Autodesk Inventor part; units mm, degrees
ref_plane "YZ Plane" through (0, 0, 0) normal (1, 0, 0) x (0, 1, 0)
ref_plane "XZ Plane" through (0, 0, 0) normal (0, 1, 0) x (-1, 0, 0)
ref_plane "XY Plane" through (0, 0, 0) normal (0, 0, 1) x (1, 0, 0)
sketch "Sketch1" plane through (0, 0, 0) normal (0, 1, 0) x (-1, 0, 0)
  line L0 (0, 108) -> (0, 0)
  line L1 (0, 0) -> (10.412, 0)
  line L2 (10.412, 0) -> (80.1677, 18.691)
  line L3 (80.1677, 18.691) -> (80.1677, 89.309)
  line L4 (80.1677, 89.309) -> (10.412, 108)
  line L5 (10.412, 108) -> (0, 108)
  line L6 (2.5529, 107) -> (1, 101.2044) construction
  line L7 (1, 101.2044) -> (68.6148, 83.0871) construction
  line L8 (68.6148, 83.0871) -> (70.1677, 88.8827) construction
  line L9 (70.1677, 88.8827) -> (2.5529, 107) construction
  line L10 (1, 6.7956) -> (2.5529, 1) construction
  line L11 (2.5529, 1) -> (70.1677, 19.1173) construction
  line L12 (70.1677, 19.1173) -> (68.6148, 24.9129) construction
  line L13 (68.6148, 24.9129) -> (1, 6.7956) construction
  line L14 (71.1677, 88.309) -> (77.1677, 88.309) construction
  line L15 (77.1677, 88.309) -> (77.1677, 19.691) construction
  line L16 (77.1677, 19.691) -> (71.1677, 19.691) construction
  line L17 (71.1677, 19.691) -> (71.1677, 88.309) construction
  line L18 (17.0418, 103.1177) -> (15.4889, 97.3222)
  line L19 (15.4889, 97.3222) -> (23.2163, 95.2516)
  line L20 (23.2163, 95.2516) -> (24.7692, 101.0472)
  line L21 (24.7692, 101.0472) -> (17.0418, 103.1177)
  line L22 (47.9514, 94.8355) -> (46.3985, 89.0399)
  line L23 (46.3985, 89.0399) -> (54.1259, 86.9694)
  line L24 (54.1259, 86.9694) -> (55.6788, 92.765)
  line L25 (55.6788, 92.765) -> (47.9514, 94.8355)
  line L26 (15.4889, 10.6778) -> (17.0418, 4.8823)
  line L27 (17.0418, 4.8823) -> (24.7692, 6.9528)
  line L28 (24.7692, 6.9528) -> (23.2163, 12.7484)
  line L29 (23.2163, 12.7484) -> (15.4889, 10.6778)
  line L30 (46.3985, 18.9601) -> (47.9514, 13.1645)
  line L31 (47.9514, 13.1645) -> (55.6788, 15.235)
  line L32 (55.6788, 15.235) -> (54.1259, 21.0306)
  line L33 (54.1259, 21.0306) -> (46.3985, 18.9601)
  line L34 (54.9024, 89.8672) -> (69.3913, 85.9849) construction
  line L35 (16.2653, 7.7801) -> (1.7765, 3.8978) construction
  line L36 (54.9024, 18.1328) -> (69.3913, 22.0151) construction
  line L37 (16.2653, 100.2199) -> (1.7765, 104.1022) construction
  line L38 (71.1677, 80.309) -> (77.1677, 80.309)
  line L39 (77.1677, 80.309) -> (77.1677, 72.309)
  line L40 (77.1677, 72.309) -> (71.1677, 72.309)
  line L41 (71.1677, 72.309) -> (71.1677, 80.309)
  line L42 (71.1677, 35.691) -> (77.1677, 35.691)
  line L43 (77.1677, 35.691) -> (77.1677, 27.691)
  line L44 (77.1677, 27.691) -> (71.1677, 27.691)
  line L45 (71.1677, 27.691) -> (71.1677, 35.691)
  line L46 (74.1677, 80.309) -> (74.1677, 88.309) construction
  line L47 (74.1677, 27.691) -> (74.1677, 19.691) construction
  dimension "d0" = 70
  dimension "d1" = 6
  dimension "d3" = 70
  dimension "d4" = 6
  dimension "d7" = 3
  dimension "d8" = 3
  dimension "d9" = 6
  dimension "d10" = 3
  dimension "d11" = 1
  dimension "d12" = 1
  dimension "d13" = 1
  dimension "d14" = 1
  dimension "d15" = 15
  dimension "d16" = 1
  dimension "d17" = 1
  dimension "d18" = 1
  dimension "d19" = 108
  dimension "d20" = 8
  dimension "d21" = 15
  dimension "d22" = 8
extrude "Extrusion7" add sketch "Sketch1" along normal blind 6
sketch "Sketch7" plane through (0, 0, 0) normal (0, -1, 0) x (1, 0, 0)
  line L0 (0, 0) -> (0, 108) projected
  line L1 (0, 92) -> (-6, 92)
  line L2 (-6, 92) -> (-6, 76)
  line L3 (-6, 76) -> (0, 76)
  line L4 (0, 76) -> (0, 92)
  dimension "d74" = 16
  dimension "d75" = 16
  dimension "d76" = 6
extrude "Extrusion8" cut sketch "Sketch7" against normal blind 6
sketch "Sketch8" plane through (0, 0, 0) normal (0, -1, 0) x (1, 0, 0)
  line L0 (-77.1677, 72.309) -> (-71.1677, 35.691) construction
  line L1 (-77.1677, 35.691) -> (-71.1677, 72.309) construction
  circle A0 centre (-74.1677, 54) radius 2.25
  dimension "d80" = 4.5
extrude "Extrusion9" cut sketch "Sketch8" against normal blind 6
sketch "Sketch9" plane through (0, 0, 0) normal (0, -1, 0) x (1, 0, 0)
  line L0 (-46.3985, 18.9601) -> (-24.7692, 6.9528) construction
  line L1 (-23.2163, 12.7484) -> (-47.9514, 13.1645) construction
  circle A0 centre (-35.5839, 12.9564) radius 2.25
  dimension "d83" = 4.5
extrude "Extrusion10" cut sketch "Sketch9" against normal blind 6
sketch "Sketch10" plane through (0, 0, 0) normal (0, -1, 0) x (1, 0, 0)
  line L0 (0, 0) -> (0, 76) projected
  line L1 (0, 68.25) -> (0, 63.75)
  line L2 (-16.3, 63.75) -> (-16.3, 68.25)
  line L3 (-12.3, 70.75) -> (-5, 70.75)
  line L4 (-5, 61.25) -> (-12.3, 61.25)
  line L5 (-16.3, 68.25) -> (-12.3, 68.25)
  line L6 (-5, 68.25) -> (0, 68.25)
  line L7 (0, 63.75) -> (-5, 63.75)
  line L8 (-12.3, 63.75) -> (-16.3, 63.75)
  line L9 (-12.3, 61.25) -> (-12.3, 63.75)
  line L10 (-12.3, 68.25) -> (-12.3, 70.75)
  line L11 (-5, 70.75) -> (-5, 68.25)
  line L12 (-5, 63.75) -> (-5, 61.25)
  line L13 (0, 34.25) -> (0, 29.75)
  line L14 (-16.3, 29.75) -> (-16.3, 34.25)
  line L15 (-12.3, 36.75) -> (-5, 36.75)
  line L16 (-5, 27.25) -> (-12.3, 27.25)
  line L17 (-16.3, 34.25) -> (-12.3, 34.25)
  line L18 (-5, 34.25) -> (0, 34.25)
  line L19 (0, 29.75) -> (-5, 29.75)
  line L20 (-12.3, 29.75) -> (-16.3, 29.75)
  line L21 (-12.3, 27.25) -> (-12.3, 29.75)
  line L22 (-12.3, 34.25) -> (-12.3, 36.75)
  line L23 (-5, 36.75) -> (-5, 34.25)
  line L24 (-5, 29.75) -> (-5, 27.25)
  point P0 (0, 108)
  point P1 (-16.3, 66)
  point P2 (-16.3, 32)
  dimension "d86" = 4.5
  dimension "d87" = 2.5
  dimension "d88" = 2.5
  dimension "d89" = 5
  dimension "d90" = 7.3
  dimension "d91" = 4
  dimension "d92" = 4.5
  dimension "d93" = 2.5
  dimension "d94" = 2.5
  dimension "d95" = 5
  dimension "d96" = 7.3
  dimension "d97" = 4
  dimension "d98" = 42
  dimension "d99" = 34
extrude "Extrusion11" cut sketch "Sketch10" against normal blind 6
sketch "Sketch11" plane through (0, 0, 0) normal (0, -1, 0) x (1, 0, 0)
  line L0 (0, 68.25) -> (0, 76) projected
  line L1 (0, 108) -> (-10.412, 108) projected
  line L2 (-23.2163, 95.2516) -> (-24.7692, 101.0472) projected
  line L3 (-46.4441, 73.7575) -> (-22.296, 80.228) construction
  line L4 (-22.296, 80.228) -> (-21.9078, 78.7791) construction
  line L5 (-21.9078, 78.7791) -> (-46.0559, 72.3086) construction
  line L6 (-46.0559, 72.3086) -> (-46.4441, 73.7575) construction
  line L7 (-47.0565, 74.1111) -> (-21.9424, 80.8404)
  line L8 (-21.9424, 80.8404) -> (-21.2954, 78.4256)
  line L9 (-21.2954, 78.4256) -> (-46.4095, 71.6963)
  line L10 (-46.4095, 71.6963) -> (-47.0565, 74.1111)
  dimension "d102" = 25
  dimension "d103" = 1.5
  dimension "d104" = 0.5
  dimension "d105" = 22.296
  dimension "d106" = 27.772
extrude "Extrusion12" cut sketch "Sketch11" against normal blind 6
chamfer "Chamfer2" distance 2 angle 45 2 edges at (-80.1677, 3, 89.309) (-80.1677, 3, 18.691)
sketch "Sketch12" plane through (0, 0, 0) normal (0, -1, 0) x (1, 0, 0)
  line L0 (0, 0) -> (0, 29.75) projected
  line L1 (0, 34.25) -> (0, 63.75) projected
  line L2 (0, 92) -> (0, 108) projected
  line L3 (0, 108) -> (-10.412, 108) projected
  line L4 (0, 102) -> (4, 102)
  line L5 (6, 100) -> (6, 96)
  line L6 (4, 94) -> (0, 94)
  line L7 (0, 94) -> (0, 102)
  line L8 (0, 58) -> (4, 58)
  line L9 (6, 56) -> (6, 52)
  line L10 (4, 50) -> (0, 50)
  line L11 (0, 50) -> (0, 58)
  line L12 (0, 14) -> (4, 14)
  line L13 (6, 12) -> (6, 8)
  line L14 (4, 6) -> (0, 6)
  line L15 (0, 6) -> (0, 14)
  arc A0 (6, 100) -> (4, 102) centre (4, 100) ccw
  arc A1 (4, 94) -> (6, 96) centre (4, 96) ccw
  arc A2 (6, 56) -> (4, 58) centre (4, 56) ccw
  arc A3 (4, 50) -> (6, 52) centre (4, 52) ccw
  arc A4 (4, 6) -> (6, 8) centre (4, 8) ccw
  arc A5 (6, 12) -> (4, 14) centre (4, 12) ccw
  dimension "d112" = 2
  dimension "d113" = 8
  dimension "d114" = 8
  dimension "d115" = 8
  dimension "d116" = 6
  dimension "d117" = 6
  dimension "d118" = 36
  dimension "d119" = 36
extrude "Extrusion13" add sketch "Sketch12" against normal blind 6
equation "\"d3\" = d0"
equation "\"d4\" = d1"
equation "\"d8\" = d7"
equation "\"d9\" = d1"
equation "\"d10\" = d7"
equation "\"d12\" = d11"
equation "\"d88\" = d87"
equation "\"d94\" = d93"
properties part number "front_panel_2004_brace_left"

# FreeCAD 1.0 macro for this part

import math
import FreeCAD as App
import Part
import Sketcher
from FreeCAD import Vector
Q = App.Units.Quantity


def edges_at(feature, points):
    """Names of the edges that pass closest to the given points."""
    edges = feature.Shape.Edges
    near = lambda p: min(range(len(edges)), key=lambda i: edges[i].distToShape(Part.Vertex(*p))[0])
    return sorted({f"Edge{near(p) + 1}" for p in points})


def add_polygon(sketch, points):
    """Adds a closed chain of lines whose ends are joined by coincident constraints."""
    first, n = sketch.GeometryCount, len(points)
    for a, b in zip(points, points[1:] + points[:1]):
        sketch.addGeometry(Part.LineSegment(App.Vector(*a, 0), App.Vector(*b, 0)), False)
    for i in range(n):
        sketch.addConstraint(Sketcher.Constraint("Coincident", first + i, 2, first + (i + 1) % n, 1))

doc = App.newDocument("Part")
params = doc.addObject("Spreadsheet::Sheet", "Params")
for row, (alias, value) in enumerate([
    ("sketch1_width", "6 mm"),
    ("sketch1_height", "108 mm"),
    ("sketch1_height2", "8 mm"),
    ("sketch1_length", "6 mm"),
    ("sketch1_length2", "8 mm"),
    ("pad1_length", "6 mm"),
    ("sketch2_width", "6 mm"),
    ("sketch2_height", "16 mm"),
    ("pocket1_length", "6 mm"),
    ("sketch3_diameter", "4.5 mm"),
    ("pocket2_length", "6 mm"),
    ("sketch4_diameter", "4.5 mm"),
    ("pocket3_length", "6 mm"),
    ("sketch5_width", "5 mm"),
    ("sketch5_width2", "4 mm"),
    ("sketch5_width3", "7.3 mm"),
    ("sketch5_height", "4.5 mm"),
    ("sketch5_height2", "2.5 mm"),
    ("pocket4_length", "6 mm"),
    ("sketch6_length", "26 mm"),
    ("sketch6_length2", "2.5 mm"),
    ("pocket5_length", "6 mm"),
    ("chamfer_size", "2 mm"),
    ("sketch7_radius", "2 mm"),
    ("sketch7_height", "8 mm"),
    ("pad2_length", "6 mm"),
], start=1):
    params.set(f"A{row}", alias)
    params.set(f"B{row}", "=" + value)
    params.setAlias(f"B{row}", alias)

body = doc.addObject("PartDesign::Body", "Body")

# Sketch on XZ plane
sketch1 = doc.addObject("Sketcher::SketchObject", "Sketch")
body.addObject(sketch1)
sketch1.AttachmentSupport = (doc.XZ_Plane, [""])
sketch1.MapMode = "FlatFace"
add_polygon(sketch1, [(-10, 108), (0, 108), (0, 0), (-10, 0), (-80, 19), (-80, 89)])  # lines 0-5
add_polygon(sketch1, [(-17, 5), (-15, 11), (-23, 13), (-25, 7)])  # lines 6-9
add_polygon(sketch1, [(-48, 13), (-46, 19), (-54, 21), (-56, 15)])  # lines 10-13
add_polygon(sketch1, [(-71, 28), (-71, 36), (-77, 36), (-77, 28)])  # lines 14-17
add_polygon(sketch1, [(-15, 97), (-17, 103), (-25, 101), (-23, 95)])  # lines 18-21
add_polygon(sketch1, [(-71, 72), (-71, 80), (-77, 80), (-77, 72)])  # lines 22-25
add_polygon(sketch1, [(-46, 89), (-48, 95), (-56, 93), (-54, 87)])  # lines 26-29
sketch1.addConstraint([
    Sketcher.Constraint("Horizontal", 0),
    Sketcher.Constraint("Vertical", 1),
    Sketcher.Constraint("Horizontal", 2),
    Sketcher.Constraint("Vertical", 4),
    Sketcher.Constraint("Vertical", 14),
    Sketcher.Constraint("Horizontal", 15),
    Sketcher.Constraint("Vertical", 16),
    Sketcher.Constraint("Horizontal", 17),
    Sketcher.Constraint("Vertical", 22),
    Sketcher.Constraint("Horizontal", 23),
    Sketcher.Constraint("Vertical", 24),
    Sketcher.Constraint("Horizontal", 25),
    Sketcher.Constraint("Coincident", 1, 2, -1, 1),
    Sketcher.Constraint("Perpendicular", 3, 6),
    Sketcher.Constraint("Perpendicular", 6, 7),
    Sketcher.Constraint("Perpendicular", 7, 8),
    Sketcher.Constraint("Perpendicular", 8, 9),
    Sketcher.Constraint("Perpendicular", 9, 10),
    Sketcher.Constraint("Perpendicular", 10, 11),
    Sketcher.Constraint("Perpendicular", 11, 12),
    Sketcher.Constraint("Perpendicular", 12, 13),
    Sketcher.Constraint("Perpendicular", 5, 18),
    Sketcher.Constraint("Perpendicular", 18, 19),
    Sketcher.Constraint("Perpendicular", 19, 20),
    Sketcher.Constraint("Perpendicular", 20, 21),
    Sketcher.Constraint("Perpendicular", 21, 26),
    Sketcher.Constraint("Perpendicular", 26, 27),
    Sketcher.Constraint("Perpendicular", 27, 28),
    Sketcher.Constraint("Perpendicular", 28, 29),
    Sketcher.Constraint("Vertical", 2, 2, 5, 2),
    Sketcher.Constraint("Vertical", 9, 2, 18, 2),
    Sketcher.Constraint("Vertical", 8, 2, 19, 2),
    Sketcher.Constraint("Vertical", 7, 2, 20, 2),
    Sketcher.Constraint("Vertical", 17, 2, 22, 2),
    Sketcher.Constraint("Vertical", 16, 2, 23, 2),
    Sketcher.Constraint("Vertical", 13, 2, 26, 2),
    Sketcher.Constraint("Vertical", 12, 2, 27, 2),
    Sketcher.Constraint("Vertical", 11, 2, 28, 2),
    Sketcher.Constraint("Equal", 16, 22),
    Sketcher.Constraint("Equal", 3, 5),
    Sketcher.Constraint("Equal", 8, 10),
    Sketcher.Constraint("Equal", 9, 11),
    Sketcher.Constraint("DistanceX", 15, 2, 15, 1, 6.0),
    Sketcher.Constraint("DistanceY", 1, 2, 1, 1, 108.0),
    Sketcher.Constraint("DistanceY", 14, 1, 14, 2, 8.0),
    Sketcher.Constraint("Angle", 5, Q("15 deg")),
    Sketcher.Constraint("Distance", 6, 6.0),
    Sketcher.Constraint("Distance", 7, 8.0),
    Sketcher.Constraint("DistanceX", 3, 2, 15, 2, 3.0),
    Sketcher.Constraint("DistanceY", 3, 2, 14, 2, 17.0),
    Sketcher.Constraint("DistanceY", 22, 2, 4, 2, 9.0),
    Sketcher.Constraint("DistanceX", 0, 1, 0, 2, 10.412),
    Sketcher.Constraint("DistanceY", 4, 1, 4, 2, 70.618),
    Sketcher.Constraint("DistanceY", -1, 1, 10, 2, 18.96),
    Sketcher.Constraint("DistanceY", -1, 1, 29, 2, 89.04),
    Sketcher.Constraint("DistanceX", 6, 2, -1, 1, 15.489),
    Sketcher.Constraint("DistanceX", 11, 2, -1, 1, 54.126),
    Sketcher.Constraint("DistanceY", 7, 2, 13, 2, 0.416),
    Sketcher.Constraint("DistanceY", 26, 2, 20, 2, 0.416),
])
sketch1.setExpression("Constraints[72]", "Params.sketch1_width")
sketch1.setExpression("Constraints[73]", "Params.sketch1_height")
sketch1.setExpression("Constraints[74]", "Params.sketch1_height2")
sketch1.setExpression("Constraints[76]", "Params.sketch1_length")
sketch1.setExpression("Constraints[77]", "Params.sketch1_length2")
pad1 = doc.addObject("PartDesign::Pad", "Pad")
body.addObject(pad1)
pad1.Profile = sketch1
pad1.setExpression("Length", "Params.pad1_length")
pad1.Reversed = True

# Sketch on XZ plane
sketch2 = doc.addObject("Sketcher::SketchObject", "Sketch001")
body.addObject(sketch2)
sketch2.AttachmentSupport = (doc.XZ_Plane, [""])
sketch2.MapMode = "FlatFace"
add_polygon(sketch2, [(-6, 76), (0, 76), (0, 92), (-6, 92)])  # lines 0-3
sketch2.addConstraint([
    Sketcher.Constraint("Horizontal", 0),
    Sketcher.Constraint("Vertical", 1),
    Sketcher.Constraint("Horizontal", 2),
    Sketcher.Constraint("Vertical", 3),
    Sketcher.Constraint("PointOnObject", 0, 2, -2),
    Sketcher.Constraint("DistanceX", 0, 1, 0, 2, 6.0),
    Sketcher.Constraint("DistanceY", 1, 1, 1, 2, 16.0),
    Sketcher.Constraint("DistanceY", -1, 1, 0, 2, 76.0),
])
sketch2.setExpression("Constraints[9]", "Params.sketch2_width")
sketch2.setExpression("Constraints[10]", "Params.sketch2_height")
pocket1 = doc.addObject("PartDesign::Pocket", "Pocket")
body.addObject(pocket1)
pocket1.Profile = sketch2
pocket1.setExpression("Length", "Params.pocket1_length")

# Sketch on XZ plane
sketch3 = doc.addObject("Sketcher::SketchObject", "Sketch002")
body.addObject(sketch3)
sketch3.AttachmentSupport = (doc.XZ_Plane, [""])
sketch3.MapMode = "FlatFace"
sketch3.addGeometry(Part.Circle(Vector(-74.2, 54, 0), Vector(0, 0, 1), 2.2), False)
sketch3.addConstraint([
    Sketcher.Constraint("Diameter", 0, 4.5),
    Sketcher.Constraint("DistanceY", -1, 1, 0, 3, 54.0),
    Sketcher.Constraint("DistanceX", 0, 3, -1, 1, 74.1677),
])
sketch3.setExpression("Constraints[0]", "Params.sketch3_diameter")
pocket2 = doc.addObject("PartDesign::Pocket", "Pocket001")
body.addObject(pocket2)
pocket2.Profile = sketch3
pocket2.setExpression("Length", "Params.pocket2_length")

# Sketch on XZ plane
sketch4 = doc.addObject("Sketcher::SketchObject", "Sketch003")
body.addObject(sketch4)
sketch4.AttachmentSupport = (doc.XZ_Plane, [""])
sketch4.MapMode = "FlatFace"
sketch4.addGeometry(Part.Circle(Vector(-35.6, 13, 0), Vector(0, 0, 1), 2.2), False)
sketch4.addConstraint([
    Sketcher.Constraint("Diameter", 0, 4.5),
    Sketcher.Constraint("DistanceX", 0, 3, -1, 1, 35.584),
    Sketcher.Constraint("DistanceY", -1, 1, 0, 3, 12.9564),
])
sketch4.setExpression("Constraints[0]", "Params.sketch4_diameter")
pocket3 = doc.addObject("PartDesign::Pocket", "Pocket002")
body.addObject(pocket3)
pocket3.Profile = sketch4
pocket3.setExpression("Length", "Params.pocket3_length")

# Sketch on XZ plane
sketch5 = doc.addObject("Sketcher::SketchObject", "Sketch004")
body.addObject(sketch5)
sketch5.AttachmentSupport = (doc.XZ_Plane, [""])
sketch5.MapMode = "FlatFace"
add_polygon(sketch5, [(-5, 29.8), (0, 29.8), (0, 34.2), (-5, 34.2), (-5, 36.8), (-12.3, 36.8), (-12.3, 34.2), (-16.3, 34.2), (-16.3, 29.8), (-12.3, 29.8), (-12.3, 27.2), (-5, 27.2)])  # lines 0-11
add_polygon(sketch5, [(-5, 63.8), (0, 63.8), (0, 68.2), (-5, 68.2), (-5, 70.8), (-12.3, 70.8), (-12.3, 68.2), (-16.3, 68.2), (-16.3, 63.8), (-12.3, 63.8), (-12.3, 61.2), (-5, 61.2)])  # lines 12-23
sketch5.addConstraint([
    Sketcher.Constraint("Horizontal", 0),
    Sketcher.Constraint("Vertical", 1),
    Sketcher.Constraint("Horizontal", 2),
    Sketcher.Constraint("Vertical", 3),
    Sketcher.Constraint("Horizontal", 4),
    Sketcher.Constraint("Vertical", 5),
    Sketcher.Constraint("Horizontal", 6),
    Sketcher.Constraint("Vertical", 7),
    Sketcher.Constraint("Horizontal", 8),
    Sketcher.Constraint("Vertical", 9),
    Sketcher.Constraint("Horizontal", 10),
    Sketcher.Constraint("Vertical", 11),
    Sketcher.Constraint("Horizontal", 12),
    Sketcher.Constraint("Vertical", 13),
    Sketcher.Constraint("Horizontal", 14),
    Sketcher.Constraint("Vertical", 15),
    Sketcher.Constraint("Horizontal", 16),
    Sketcher.Constraint("Vertical", 17),
    Sketcher.Constraint("Horizontal", 18),
    Sketcher.Constraint("Vertical", 19),
    Sketcher.Constraint("Horizontal", 20),
    Sketcher.Constraint("Vertical", 21),
    Sketcher.Constraint("Horizontal", 22),
    Sketcher.Constraint("Vertical", 23),
    Sketcher.Constraint("PointOnObject", 0, 2, -2),
    Sketcher.Constraint("PointOnObject", 12, 2, -2),
    Sketcher.Constraint("Horizontal", 2, 2, 5, 2),
    Sketcher.Constraint("Horizontal", 0, 2, 7, 2),
    Sketcher.Constraint("Horizontal", 14, 2, 17, 2),
    Sketcher.Constraint("Horizontal", 12, 2, 19, 2),
    Sketcher.Constraint("Vertical", 5, 2, 8, 2),
    Sketcher.Constraint("Vertical", 3, 2, 10, 2),
    Sketcher.Constraint("Vertical", 11, 2, 14, 2),
    Sketcher.Constraint("Vertical", 9, 2, 16, 2),
    Sketcher.Constraint("Vertical", 7, 2, 18, 2),
    Sketcher.Constraint("Vertical", 17, 2, 20, 2),
    Sketcher.Constraint("Vertical", 15, 2, 22, 2),
    Sketcher.Constraint("Equal", 5, 9),
    Sketcher.Constraint("Equal", 7, 13),
    Sketcher.Constraint("Equal", 11, 15),
    Sketcher.Constraint("Equal", 17, 21),
    Sketcher.Constraint("DistanceX", 0, 1, 0, 2, 5.0),
    Sketcher.Constraint("DistanceX", 6, 2, 6, 1, 4.0),
    Sketcher.Constraint("DistanceX", 4, 2, 4, 1, 7.3),
    Sketcher.Constraint("DistanceY", 1, 1, 1, 2, 4.5),
    Sketcher.Constraint("DistanceY", 3, 1, 3, 2, 2.5),
    Sketcher.Constraint("DistanceY", 1, 2, 13, 2, 34.0),
    Sketcher.Constraint("DistanceY", -1, 1, 0, 2, 29.75),
])
sketch5.setExpression("Constraints[65]", "Params.sketch5_width")
sketch5.setExpression("Constraints[66]", "Params.sketch5_width2")
sketch5.setExpression("Constraints[67]", "Params.sketch5_width3")
sketch5.setExpression("Constraints[68]", "Params.sketch5_height")
sketch5.setExpression("Constraints[69]", "Params.sketch5_height2")
pocket4 = doc.addObject("PartDesign::Pocket", "Pocket003")
body.addObject(pocket4)
pocket4.Profile = sketch5
pocket4.setExpression("Length", "Params.pocket4_length")

# Sketch on XZ plane
sketch6 = doc.addObject("Sketcher::SketchObject", "Sketch005")
body.addObject(sketch6)
sketch6.AttachmentSupport = (doc.XZ_Plane, [""])
sketch6.MapMode = "FlatFace"
add_polygon(sketch6, [(-21.9, 80.8), (-47.1, 74.1), (-46.4, 71.7), (-21.3, 78.4)])  # lines 0-3
sketch6.addConstraint([
    Sketcher.Constraint("Perpendicular", 0, 1),
    Sketcher.Constraint("Perpendicular", 1, 2),
    Sketcher.Constraint("Perpendicular", 2, 3),
    Sketcher.Constraint("Angle", 0, Q("-165 deg")),
    Sketcher.Constraint("Distance", 0, 26.0),
    Sketcher.Constraint("Distance", 1, 2.5),
    Sketcher.Constraint("DistanceY", -1, 1, 0, 2, 74.111),
    Sketcher.Constraint("DistanceX", 0, 2, -1, 1, 47.0565),
])
sketch6.setExpression("Constraints[8]", "Params.sketch6_length")
sketch6.setExpression("Constraints[9]", "Params.sketch6_length2")
pocket5 = doc.addObject("PartDesign::Pocket", "Pocket004")
body.addObject(pocket5)
pocket5.Profile = sketch6
pocket5.setExpression("Length", "Params.pocket5_length")
doc.recompute()

chamfer = doc.addObject("PartDesign::Chamfer", "Chamfer")
body.addObject(chamfer)
chamfer.Base = (pocket5, edges_at(pocket5, [(-80.168, 3, 89.309), (-80.168, 3, 18.691)]))
chamfer.setExpression("Size", "Params.chamfer_size")

# Sketch on XZ plane
sketch7 = doc.addObject("Sketcher::SketchObject", "Sketch006")
body.addObject(sketch7)
sketch7.AttachmentSupport = (doc.XZ_Plane, [""])
sketch7.MapMode = "FlatFace"
sketch7.addGeometry([
    Part.LineSegment(Vector(0, 14, 0), Vector(0, 6, 0)),  # 0
    Part.LineSegment(Vector(0, 6, 0), Vector(4, 6, 0)),  # 1
    Part.ArcOfCircle(Part.Circle(Vector(4, 8, 0), Vector(0, 0, 1), 2), math.radians(-90), math.radians(0)),  # 2
    Part.LineSegment(Vector(6, 8, 0), Vector(6, 12, 0)),  # 3
    Part.ArcOfCircle(Part.Circle(Vector(4, 12, 0), Vector(0, 0, 1), 2), math.radians(0), math.radians(90)),  # 4
    Part.LineSegment(Vector(4, 14, 0), Vector(0, 14, 0)),  # 5
    Part.LineSegment(Vector(0, 58, 0), Vector(0, 50, 0)),  # 6
    Part.LineSegment(Vector(0, 50, 0), Vector(4, 50, 0)),  # 7
    Part.ArcOfCircle(Part.Circle(Vector(4, 52, 0), Vector(0, 0, 1), 2), math.radians(-90), math.radians(0)),  # 8
    Part.LineSegment(Vector(6, 52, 0), Vector(6, 56, 0)),  # 9
    Part.ArcOfCircle(Part.Circle(Vector(4, 56, 0), Vector(0, 0, 1), 2), math.radians(0), math.radians(90)),  # 10
    Part.LineSegment(Vector(4, 58, 0), Vector(0, 58, 0)),  # 11
    Part.LineSegment(Vector(0, 102, 0), Vector(0, 94, 0)),  # 12
    Part.LineSegment(Vector(0, 94, 0), Vector(4, 94, 0)),  # 13
    Part.ArcOfCircle(Part.Circle(Vector(4, 96, 0), Vector(0, 0, 1), 2), math.radians(-90), math.radians(0)),  # 14
    Part.LineSegment(Vector(6, 96, 0), Vector(6, 100, 0)),  # 15
    Part.ArcOfCircle(Part.Circle(Vector(4, 100, 0), Vector(0, 0, 1), 2), math.radians(0), math.radians(90)),  # 16
    Part.LineSegment(Vector(4, 102, 0), Vector(0, 102, 0)),  # 17
], False)
sketch7.addConstraint([
    Sketcher.Constraint("Coincident", 0, 2, 1, 1),
    Sketcher.Constraint("Tangent", 1, 2, 2, 1),
    Sketcher.Constraint("Tangent", 2, 2, 3, 1),
    Sketcher.Constraint("Tangent", 3, 2, 4, 1),
    Sketcher.Constraint("Tangent", 4, 2, 5, 1),
    Sketcher.Constraint("Coincident", 5, 2, 0, 1),
    Sketcher.Constraint("Coincident", 6, 2, 7, 1),
    Sketcher.Constraint("Tangent", 7, 2, 8, 1),
    Sketcher.Constraint("Tangent", 8, 2, 9, 1),
    Sketcher.Constraint("Tangent", 9, 2, 10, 1),
    Sketcher.Constraint("Tangent", 10, 2, 11, 1),
    Sketcher.Constraint("Coincident", 11, 2, 6, 1),
    Sketcher.Constraint("Coincident", 12, 2, 13, 1),
    Sketcher.Constraint("Tangent", 13, 2, 14, 1),
    Sketcher.Constraint("Tangent", 14, 2, 15, 1),
    Sketcher.Constraint("Tangent", 15, 2, 16, 1),
    Sketcher.Constraint("Tangent", 16, 2, 17, 1),
    Sketcher.Constraint("Coincident", 17, 2, 12, 1),
    Sketcher.Constraint("Vertical", 0),
    Sketcher.Constraint("Horizontal", 1),
    Sketcher.Constraint("Vertical", 3),
    Sketcher.Constraint("Horizontal", 5),
    Sketcher.Constraint("Vertical", 6),
    Sketcher.Constraint("Horizontal", 7),
    Sketcher.Constraint("Vertical", 9),
    Sketcher.Constraint("Horizontal", 11),
    Sketcher.Constraint("Vertical", 12),
    Sketcher.Constraint("Horizontal", 13),
    Sketcher.Constraint("Vertical", 15),
    Sketcher.Constraint("Horizontal", 17),
    Sketcher.Constraint("Equal", 2, 4),
    Sketcher.Constraint("Equal", 4, 8),
    Sketcher.Constraint("Equal", 8, 10),
    Sketcher.Constraint("Equal", 10, 14),
    Sketcher.Constraint("Equal", 14, 16),
    Sketcher.Constraint("PointOnObject", 0, 2, -2),
    Sketcher.Constraint("PointOnObject", 6, 2, -2),
    Sketcher.Constraint("PointOnObject", 12, 2, -2),
    Sketcher.Constraint("Vertical", 4, 3, 8, 3),
    Sketcher.Constraint("Vertical", 10, 3, 14, 3),
    Sketcher.Constraint("Equal", 17, 3),
    Sketcher.Constraint("Equal", 0, 6),
    Sketcher.Constraint("Equal", 6, 12),
    Sketcher.Constraint("Radius", 2, 2.0),
    Sketcher.Constraint("DistanceY", 0, 2, 0, 1, 8.0),
    Sketcher.Constraint("DistanceY", -1, 1, 2, 3, 8.0),
    Sketcher.Constraint("DistanceY", 5, 2, 6, 2, 36.0),
    Sketcher.Constraint("DistanceY", 11, 2, 12, 2, 36.0),
])
sketch7.setExpression("Constraints[43]", "Params.sketch7_radius")
sketch7.setExpression("Constraints[44]", "Params.sketch7_height")
pad2 = doc.addObject("PartDesign::Pad", "Pad001")
body.addObject(pad2)
pad2.Profile = sketch7
pad2.setExpression("Length", "Params.pad2_length")
pad2.Reversed = True

doc.recompute()
